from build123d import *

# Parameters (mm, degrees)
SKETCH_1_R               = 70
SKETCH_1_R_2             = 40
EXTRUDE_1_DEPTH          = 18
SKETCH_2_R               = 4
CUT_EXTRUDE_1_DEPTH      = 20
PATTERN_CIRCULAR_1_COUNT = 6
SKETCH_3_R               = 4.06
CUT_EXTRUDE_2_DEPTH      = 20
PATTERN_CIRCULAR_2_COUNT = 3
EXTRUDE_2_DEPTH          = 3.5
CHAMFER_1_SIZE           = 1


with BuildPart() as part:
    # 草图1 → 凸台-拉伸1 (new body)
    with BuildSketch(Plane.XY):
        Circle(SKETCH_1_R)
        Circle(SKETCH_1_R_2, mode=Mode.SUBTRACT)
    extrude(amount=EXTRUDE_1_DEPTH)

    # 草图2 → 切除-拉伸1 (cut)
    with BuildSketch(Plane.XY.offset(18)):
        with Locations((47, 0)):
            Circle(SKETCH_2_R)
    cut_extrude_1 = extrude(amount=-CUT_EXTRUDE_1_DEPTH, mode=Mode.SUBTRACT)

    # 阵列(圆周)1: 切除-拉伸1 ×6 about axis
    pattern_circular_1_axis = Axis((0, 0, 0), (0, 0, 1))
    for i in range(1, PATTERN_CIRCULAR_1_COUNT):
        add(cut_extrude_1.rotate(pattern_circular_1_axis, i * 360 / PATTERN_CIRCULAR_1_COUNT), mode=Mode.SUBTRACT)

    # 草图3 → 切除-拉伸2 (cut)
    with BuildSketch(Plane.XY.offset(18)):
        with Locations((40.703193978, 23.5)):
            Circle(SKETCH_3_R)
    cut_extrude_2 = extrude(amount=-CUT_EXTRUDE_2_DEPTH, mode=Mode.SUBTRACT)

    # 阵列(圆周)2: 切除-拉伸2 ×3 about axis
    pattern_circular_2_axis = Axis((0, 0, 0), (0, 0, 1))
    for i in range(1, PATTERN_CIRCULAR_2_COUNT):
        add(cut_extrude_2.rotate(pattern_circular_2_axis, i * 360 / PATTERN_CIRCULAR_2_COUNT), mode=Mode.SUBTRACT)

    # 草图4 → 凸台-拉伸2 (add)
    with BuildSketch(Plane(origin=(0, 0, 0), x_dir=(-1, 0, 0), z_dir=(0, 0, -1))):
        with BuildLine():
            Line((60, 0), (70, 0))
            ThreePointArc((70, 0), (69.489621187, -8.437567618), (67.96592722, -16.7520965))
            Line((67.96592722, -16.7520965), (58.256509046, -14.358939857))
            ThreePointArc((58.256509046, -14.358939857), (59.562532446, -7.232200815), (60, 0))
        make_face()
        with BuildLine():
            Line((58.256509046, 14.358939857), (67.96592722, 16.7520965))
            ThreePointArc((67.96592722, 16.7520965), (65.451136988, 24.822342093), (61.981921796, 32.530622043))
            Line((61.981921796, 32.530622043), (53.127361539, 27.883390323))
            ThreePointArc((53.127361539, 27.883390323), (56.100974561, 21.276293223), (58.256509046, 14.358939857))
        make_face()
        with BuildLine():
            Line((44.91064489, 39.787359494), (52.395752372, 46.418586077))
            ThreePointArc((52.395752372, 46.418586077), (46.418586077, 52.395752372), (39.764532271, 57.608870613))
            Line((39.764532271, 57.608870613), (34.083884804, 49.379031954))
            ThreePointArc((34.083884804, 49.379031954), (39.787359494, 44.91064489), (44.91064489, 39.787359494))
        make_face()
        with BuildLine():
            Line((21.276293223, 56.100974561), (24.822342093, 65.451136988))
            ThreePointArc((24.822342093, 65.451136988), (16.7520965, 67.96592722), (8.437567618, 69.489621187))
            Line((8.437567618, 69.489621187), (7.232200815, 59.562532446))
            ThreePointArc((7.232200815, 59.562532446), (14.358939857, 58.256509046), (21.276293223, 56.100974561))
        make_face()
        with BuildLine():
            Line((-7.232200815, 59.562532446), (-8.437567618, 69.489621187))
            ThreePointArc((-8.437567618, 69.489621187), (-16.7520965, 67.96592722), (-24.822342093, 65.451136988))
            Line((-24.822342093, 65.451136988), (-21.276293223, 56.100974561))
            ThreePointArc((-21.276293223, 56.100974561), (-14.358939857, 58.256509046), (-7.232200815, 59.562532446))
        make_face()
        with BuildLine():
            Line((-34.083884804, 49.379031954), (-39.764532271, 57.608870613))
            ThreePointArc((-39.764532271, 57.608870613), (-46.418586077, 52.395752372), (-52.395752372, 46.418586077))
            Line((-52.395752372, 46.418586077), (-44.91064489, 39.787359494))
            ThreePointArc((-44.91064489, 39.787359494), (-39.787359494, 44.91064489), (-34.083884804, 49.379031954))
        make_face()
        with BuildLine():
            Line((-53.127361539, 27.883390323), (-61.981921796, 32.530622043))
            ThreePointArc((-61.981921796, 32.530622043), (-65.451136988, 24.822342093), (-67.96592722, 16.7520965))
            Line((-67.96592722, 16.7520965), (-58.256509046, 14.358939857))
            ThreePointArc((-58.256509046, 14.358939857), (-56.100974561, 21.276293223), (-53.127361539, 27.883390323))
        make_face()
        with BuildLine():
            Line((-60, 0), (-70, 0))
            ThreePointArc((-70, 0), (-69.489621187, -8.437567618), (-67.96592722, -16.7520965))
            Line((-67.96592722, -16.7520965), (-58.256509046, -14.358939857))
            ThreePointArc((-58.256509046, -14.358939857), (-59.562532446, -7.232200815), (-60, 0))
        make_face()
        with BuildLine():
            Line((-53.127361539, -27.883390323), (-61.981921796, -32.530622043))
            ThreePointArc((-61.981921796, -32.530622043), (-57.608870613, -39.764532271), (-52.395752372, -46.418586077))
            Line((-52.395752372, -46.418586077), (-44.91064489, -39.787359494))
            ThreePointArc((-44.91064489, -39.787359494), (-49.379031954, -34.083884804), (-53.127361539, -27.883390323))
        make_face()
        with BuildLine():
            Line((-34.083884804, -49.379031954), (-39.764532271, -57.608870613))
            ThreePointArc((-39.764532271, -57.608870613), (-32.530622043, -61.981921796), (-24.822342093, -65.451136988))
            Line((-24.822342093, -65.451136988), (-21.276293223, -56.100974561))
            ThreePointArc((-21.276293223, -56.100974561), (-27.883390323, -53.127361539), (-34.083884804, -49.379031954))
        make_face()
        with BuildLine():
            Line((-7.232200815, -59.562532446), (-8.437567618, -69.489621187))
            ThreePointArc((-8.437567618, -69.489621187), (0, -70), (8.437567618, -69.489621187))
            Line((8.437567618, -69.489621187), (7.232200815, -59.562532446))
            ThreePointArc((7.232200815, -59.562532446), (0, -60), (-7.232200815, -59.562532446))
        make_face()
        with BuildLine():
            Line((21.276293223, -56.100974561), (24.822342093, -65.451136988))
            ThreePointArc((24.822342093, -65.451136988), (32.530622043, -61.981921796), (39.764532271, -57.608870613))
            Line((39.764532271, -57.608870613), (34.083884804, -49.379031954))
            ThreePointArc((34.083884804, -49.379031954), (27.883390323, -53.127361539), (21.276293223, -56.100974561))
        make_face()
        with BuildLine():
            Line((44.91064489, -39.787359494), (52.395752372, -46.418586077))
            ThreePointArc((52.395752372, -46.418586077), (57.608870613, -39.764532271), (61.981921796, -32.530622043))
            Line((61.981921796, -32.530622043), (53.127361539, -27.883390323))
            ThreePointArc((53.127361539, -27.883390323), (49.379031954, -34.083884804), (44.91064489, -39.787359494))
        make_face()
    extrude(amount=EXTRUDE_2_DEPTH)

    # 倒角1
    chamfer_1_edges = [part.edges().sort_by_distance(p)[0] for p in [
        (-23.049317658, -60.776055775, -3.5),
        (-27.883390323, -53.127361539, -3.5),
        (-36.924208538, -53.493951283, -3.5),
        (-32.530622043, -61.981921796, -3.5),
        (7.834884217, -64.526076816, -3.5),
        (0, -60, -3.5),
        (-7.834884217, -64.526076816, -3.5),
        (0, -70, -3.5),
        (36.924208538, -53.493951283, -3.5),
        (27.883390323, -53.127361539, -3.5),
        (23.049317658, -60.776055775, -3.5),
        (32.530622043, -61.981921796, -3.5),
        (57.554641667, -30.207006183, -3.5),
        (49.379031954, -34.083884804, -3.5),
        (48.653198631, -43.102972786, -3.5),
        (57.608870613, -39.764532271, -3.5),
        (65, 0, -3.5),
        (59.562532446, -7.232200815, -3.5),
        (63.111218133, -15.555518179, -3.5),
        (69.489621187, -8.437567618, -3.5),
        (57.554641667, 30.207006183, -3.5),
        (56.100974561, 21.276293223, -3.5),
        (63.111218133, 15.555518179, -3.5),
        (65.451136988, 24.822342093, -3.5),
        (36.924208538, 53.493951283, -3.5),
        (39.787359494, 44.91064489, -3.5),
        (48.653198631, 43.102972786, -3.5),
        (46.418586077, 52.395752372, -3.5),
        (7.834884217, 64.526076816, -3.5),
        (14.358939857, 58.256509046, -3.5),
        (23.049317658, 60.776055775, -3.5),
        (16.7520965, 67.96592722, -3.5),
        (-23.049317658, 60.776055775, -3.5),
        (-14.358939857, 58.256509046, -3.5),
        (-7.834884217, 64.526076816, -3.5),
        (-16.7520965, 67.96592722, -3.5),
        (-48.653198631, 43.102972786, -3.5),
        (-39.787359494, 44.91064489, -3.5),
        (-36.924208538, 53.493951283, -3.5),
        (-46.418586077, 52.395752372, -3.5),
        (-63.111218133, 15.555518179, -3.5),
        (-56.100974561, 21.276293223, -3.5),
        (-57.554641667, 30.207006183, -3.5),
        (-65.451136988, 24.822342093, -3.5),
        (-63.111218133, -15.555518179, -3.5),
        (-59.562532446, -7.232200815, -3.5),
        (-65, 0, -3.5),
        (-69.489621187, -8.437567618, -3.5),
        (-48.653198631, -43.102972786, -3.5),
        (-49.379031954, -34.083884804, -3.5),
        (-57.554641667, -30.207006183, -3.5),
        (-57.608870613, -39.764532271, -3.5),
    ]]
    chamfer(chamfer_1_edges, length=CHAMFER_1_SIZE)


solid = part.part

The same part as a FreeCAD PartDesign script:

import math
import FreeCAD as App
import Part
import Sketcher

V = App.Vector


def edges_at(feature, points):
    """Names of the edges that pass closest to the given points."""
    edges = feature.Shape.Edges
    near = lambda p: min(range(len(edges)), key=lambda i: edges[i].distToShape(Part.Vertex(*p))[0])
    return sorted({f"Edge{near(p) + 1}" for p in points})

doc = App.newDocument("Part")
body = doc.addObject("PartDesign::Body", "Body")

# Sketch on XY plane
sketch1 = doc.addObject("Sketcher::SketchObject", "Sketch")
body.addObject(sketch1)
sketch1.AttachmentSupport = (doc.XY_Plane, [""])
sketch1.MapMode = "FlatFace"
sketch1.addGeometry([
    Part.Circle(V(0, 0, 0), V(0, 0, 1), 70),
    Part.Circle(V(0, 0, 0), V(0, 0, 1), 40),
], False)
sketch1.addConstraint([
    Sketcher.Constraint("Coincident", 0, 3, -1, 1),
    Sketcher.Constraint("Coincident", 1, 3, -1, 1),
    Sketcher.Constraint("Diameter", 0, 140.0),
    Sketcher.Constraint("Diameter", 1, 80.0),
])
pad1 = doc.addObject("PartDesign::Pad", "Pad")
body.addObject(pad1)
pad1.Profile = sketch1
pad1.Length = 18

# Sketch on XY plane
sketch2 = doc.addObject("Sketcher::SketchObject", "Sketch001")
body.addObject(sketch2)
sketch2.AttachmentSupport = (doc.XY_Plane, [""])
sketch2.MapMode = "FlatFace"
sketch2.AttachmentOffset = App.Placement(V(0, 0, 18), App.Rotation())
sketch2.addGeometry(Part.Circle(V(47, 0, 0), V(0, 0, 1), 4), False)
sketch2.addConstraint([
    Sketcher.Constraint("PointOnObject", 0, 3, -1),
    Sketcher.Constraint("Diameter", 0, 8.0),
    Sketcher.Constraint("DistanceX", -1, 1, 0, 3, 47.0),
])
pocket1 = doc.addObject("PartDesign::Pocket", "Pocket")
body.addObject(pocket1)
pocket1.Profile = sketch2
pocket1.Length = 20
doc.recompute()

polarpattern = doc.addObject("PartDesign::PolarPattern", "PolarPattern")
body.addObject(polarpattern)
polarpattern.Originals = [pocket1]
polarpattern.Axis = (doc.Z_Axis, [""])
polarpattern.Angle = 360
polarpattern.Occurrences = 6
body.Tip = polarpattern

# Sketch on XY plane
sketch3 = doc.addObject("Sketcher::SketchObject", "Sketch002")
body.addObject(sketch3)
sketch3.AttachmentSupport = (doc.XY_Plane, [""])
sketch3.MapMode = "FlatFace"
sketch3.AttachmentOffset = App.Placement(V(0, 0, 18), App.Rotation())
sketch3.addGeometry(Part.Circle(V(40.7, 23.5, 0), V(0, 0, 1), 4.1), False)
sketch3.addConstraint([
    Sketcher.Constraint("Diameter", 0, 8.12),
    Sketcher.Constraint("DistanceY", -1, 1, 0, 3, 23.5),
    Sketcher.Constraint("DistanceX", -1, 1, 0, 3, 40.703194),
])
pocket2 = doc.addObject("PartDesign::Pocket", "Pocket001")
body.addObject(pocket2)
pocket2.Profile = sketch3
pocket2.Length = 20
doc.recompute()

polarpattern2 = doc.addObject("PartDesign::PolarPattern", "PolarPattern001")
body.addObject(polarpattern2)
polarpattern2.Originals = [pocket2]
polarpattern2.Axis = (doc.Z_Axis, [""])
polarpattern2.Angle = 360
polarpattern2.Occurrences = 3
body.Tip = polarpattern2

# Sketch on XY plane
sketch4 = doc.addObject("Sketcher::SketchObject", "Sketch003")
body.addObject(sketch4)
sketch4.AttachmentSupport = (doc.XY_Plane, [""])
sketch4.MapMode = "FlatFace"
sketch4.addGeometry([
    Part.LineSegment(V(-70, 0, 0), V(-60, 0, 0)),  # 0
    Part.ArcOfCircle(Part.Circle(V(0, 0, 0), V(0, 0, 1), 60), math.radians(180), math.radians(193.85)),  # 1
    Part.LineSegment(V(-58, -14, 0), V(-68, -17, 0)),  # 2
    Part.ArcOfCircle(Part.Circle(V(0, 0, 0), V(0, 0, 1), 70), math.radians(180), math.radians(193.85)),  # 3
    Part.LineSegment(V(-58, 14, 0), V(-68, 17, 0)),  # 4
    Part.ArcOfCircle(Part.Circle(V(0, 0, 0), V(0, 0, 1), 70), math.radians(152.31), math.radians(166.15)),  # 5
    Part.LineSegment(V(-62, 33, 0), V(-53, 28, 0)),  # 6
    Part.ArcOfCircle(Part.Circle(V(0, 0, 0), V(0, 0, 1), 60), math.radians(152.31), math.radians(166.15)),  # 7
    Part.LineSegment(V(-45, 40, 0), V(-52, 46, 0)),  # 8
    Part.ArcOfCircle(Part.Circle(V(0, 0, 0), V(0, 0, 1), 70), math.radians(124.62), math.radians(138.46)),  # 9
    Part.LineSegment(V(-40, 58, 0), V(-34, 49, 0)),  # 10
    Part.ArcOfCircle(Part.Circle(V(0, 0, 0), V(0, 0, 1), 60), math.radians(124.62), math.radians(138.46)),  # 11
    Part.LineSegment(V(-21, 56, 0), V(-25, 65, 0)),  # 12
    Part.ArcOfCircle(Part.Circle(V(0, 0, 0), V(0, 0, 1), 70), math.radians(96.92), math.radians(110.77)),  # 13
    Part.LineSegment(V(-8, 69, 0), V(-7, 60, 0)),  # 14
    Part.ArcOfCircle(Part.Circle(V(0, 0, 0), V(0, 0, 1), 60), math.radians(96.92), math.radians(110.77)),  # 15
    Part.LineSegment(V(7, 60, 0), V(8, 69, 0)),  # 16
    Part.ArcOfCircle(Part.Circle(V(0, 0, 0), V(0, 0, 1), 70), math.radians(69.23), math.radians(83.08)),  # 17
    Part.LineSegment(V(25, 65, 0), V(21, 56, 0)),  # 18
    Part.ArcOfCircle(Part.Circle(V(0, 0, 0), V(0, 0, 1), 60), math.radians(69.23), math.radians(83.08)),  # 19
    Part.LineSegment(V(34, 49, 0), V(40, 58, 0)),  # 20
    Part.ArcOfCircle(Part.Circle(V(0, 0, 0), V(0, 0, 1), 70), math.radians(41.54), math.radians(55.38)),  # 21
    Part.LineSegment(V(52, 46, 0), V(45, 40, 0)),  # 22
    Part.ArcOfCircle(Part.Circle(V(0, 0, 0), V(0, 0, 1), 60), math.radians(41.54), math.radians(55.38)),  # 23
    Part.LineSegment(V(53, 28, 0), V(62, 33, 0)),  # 24
    Part.ArcOfCircle(Part.Circle(V(0, 0, 0), V(0, 0, 1), 70), math.radians(13.85), math.radians(27.69)),  # 25
    Part.LineSegment(V(68, 17, 0), V(58, 14, 0)),  # 26
    Part.ArcOfCircle(Part.Circle(V(0, 0, 0), V(0, 0, 1), 60), math.radians(13.85), math.radians(27.69)),  # 27
    Part.LineSegment(V(60, 0, 0), V(70, 0, 0)),  # 28
    Part.ArcOfCircle(Part.Circle(V(0, 0, 0), V(0, 0, 1), 70), math.radians(-13.85), math.radians(0)),  # 29
    Part.LineSegment(V(68, -17, 0), V(58, -14, 0)),  # 30
    Part.ArcOfCircle(Part.Circle(V(0, 0, 0), V(0, 0, 1), 60), math.radians(-13.85), math.radians(0)),  # 31
    Part.LineSegment(V(53, -28, 0), V(62, -33, 0)),  # 32
    Part.ArcOfCircle(Part.Circle(V(0, 0, 0), V(0, 0, 1), 70), math.radians(-41.54), math.radians(-27.69)),  # 33
    Part.LineSegment(V(52, -46, 0), V(45, -40, 0)),  # 34
    Part.ArcOfCircle(Part.Circle(V(0, 0, 0), V(0, 0, 1), 60), math.radians(-41.54), math.radians(-27.69)),  # 35
    Part.LineSegment(V(34, -49, 0), V(40, -58, 0)),  # 36
    Part.ArcOfCircle(Part.Circle(V(0, 0, 0), V(0, 0, 1), 70), math.radians(-69.23), math.radians(-55.38)),  # 37
    Part.LineSegment(V(25, -65, 0), V(21, -56, 0)),  # 38
    Part.ArcOfCircle(Part.Circle(V(0, 0, 0), V(0, 0, 1), 60), math.radians(-69.23), math.radians(-55.38)),  # 39
    Part.LineSegment(V(7, -60, 0), V(8, -69, 0)),  # 40
    Part.ArcOfCircle(Part.Circle(V(0, 0, 0), V(0, 0, 1), 70), math.radians(-96.92), math.radians(-83.08)),  # 41
    Part.LineSegment(V(-8, -69, 0), V(-7, -60, 0)),  # 42
    Part.ArcOfCircle(Part.Circle(V(0, 0, 0), V(0, 0, 1), 60), math.radians(-96.92), math.radians(-83.08)),  # 43
    Part.LineSegment(V(-21, -56, 0), V(-25, -65, 0)),  # 44
    Part.ArcOfCircle(Part.Circle(V(0, 0, 0), V(0, 0, 1), 70), math.radians(-124.62), math.radians(-110.77)),  # 45
    Part.LineSegment(V(-40, -58, 0), V(-34, -49, 0)),  # 46
    Part.ArcOfCircle(Part.Circle(V(0, 0, 0), V(0, 0, 1), 60), math.radians(-124.62), math.radians(-110.77)),  # 47
    Part.LineSegment(V(-45, -40, 0), V(-52, -46, 0)),  # 48
    Part.ArcOfCircle(Part.Circle(V(0, 0, 0), V(0, 0, 1), 70), math.radians(-152.31), math.radians(-138.46)),  # 49
    Part.LineSegment(V(-62, -33, 0), V(-53, -28, 0)),  # 50
    Part.ArcOfCircle(Part.Circle(V(0, 0, 0), V(0, 0, 1), 60), math.radians(-152.31), math.radians(-138.46)),  # 51
], False)
sketch4.addConstraint([
    Sketcher.Constraint("Coincident", 0, 2, 1, 1),
    Sketcher.Constraint("Coincident", 1, 2, 2, 1),
    Sketcher.Constraint("Coincident", 2, 2, 3, 2),
    Sketcher.Constraint("Coincident", 3, 1, 0, 1),
    Sketcher.Constraint("Coincident", 4, 2, 5, 2),
    Sketcher.Constraint("Coincident", 5, 1, 6, 1),
    Sketcher.Constraint("Coincident", 6, 2, 7, 1),
    Sketcher.Constraint("Coincident", 7, 2, 4, 1),
    Sketcher.Constraint("Coincident", 8, 2, 9, 2),
    Sketcher.Constraint("Coincident", 9, 1, 10, 1),
    Sketcher.Constraint("Coincident", 10, 2, 11, 1),
    Sketcher.Constraint("Coincident", 11, 2, 8, 1),
    Sketcher.Constraint("Coincident", 12, 2, 13, 2),
    Sketcher.Constraint("Coincident", 13, 1, 14, 1),
    Sketcher.Constraint("Coincident", 14, 2, 15, 1),
    Sketcher.Constraint("Coincident", 15, 2, 12, 1),
    Sketcher.Constraint("Coincident", 16, 2, 17, 2),
    Sketcher.Constraint("Coincident", 17, 1, 18, 1),
    Sketcher.Constraint("Coincident", 18, 2, 19, 1),
    Sketcher.Constraint("Coincident", 19, 2, 16, 1),
    Sketcher.Constraint("Coincident", 20, 2, 21, 2),
    Sketcher.Constraint("Coincident", 21, 1, 22, 1),
    Sketcher.Constraint("Coincident", 22, 2, 23, 1),
    Sketcher.Constraint("Coincident", 23, 2, 20, 1),
    Sketcher.Constraint("Coincident", 24, 2, 25, 2),
    Sketcher.Constraint("Coincident", 25, 1, 26, 1),
    Sketcher.Constraint("Coincident", 26, 2, 27, 1),
    Sketcher.Constraint("Coincident", 27, 2, 24, 1),
    Sketcher.Constraint("Coincident", 28, 2, 29, 2),
    Sketcher.Constraint("Coincident", 29, 1, 30, 1),
    Sketcher.Constraint("Coincident", 30, 2, 31, 1),
    Sketcher.Constraint("Coincident", 31, 2, 28, 1),
    Sketcher.Constraint("Coincident", 32, 2, 33, 2),
    Sketcher.Constraint("Coincident", 33, 1, 34, 1),
    Sketcher.Constraint("Coincident", 34, 2, 35, 1),
    Sketcher.Constraint("Coincident", 35, 2, 32, 1),
    Sketcher.Constraint("Coincident", 36, 2, 37, 2),
    Sketcher.Constraint("Coincident", 37, 1, 38, 1),
    Sketcher.Constraint("Coincident", 38, 2, 39, 1),
    Sketcher.Constraint("Coincident", 39, 2, 36, 1),
    Sketcher.Constraint("Coincident", 40, 2, 41, 2),
    Sketcher.Constraint("Coincident", 41, 1, 42, 1),
    Sketcher.Constraint("Coincident", 42, 2, 43, 1),
    Sketcher.Constraint("Coincident", 43, 2, 40, 1),
    Sketcher.Constraint("Coincident", 44, 2, 45, 2),
    Sketcher.Constraint("Coincident", 45, 1, 46, 1),
    Sketcher.Constraint("Coincident", 46, 2, 47, 1),
    Sketcher.Constraint("Coincident", 47, 2, 44, 1),
    Sketcher.Constraint("Coincident", 48, 2, 49, 2),
    Sketcher.Constraint("Coincident", 49, 1, 50, 1),
    Sketcher.Constraint("Coincident", 50, 2, 51, 1),
    Sketcher.Constraint("Coincident", 51, 2, 48, 1),
    Sketcher.Constraint("Horizontal", 0),
    Sketcher.Constraint("Horizontal", 28),
    Sketcher.Constraint("Coincident", 1, 3, -1, 1),
    Sketcher.Constraint("Coincident", 3, 3, -1, 1),
    Sketcher.Constraint("Coincident", 5, 3, -1, 1),
    Sketcher.Constraint("Coincident", 7, 3, -1, 1),
    Sketcher.Constraint("Coincident", 9, 3, -1, 1),
    Sketcher.Constraint("Coincident", 11, 3, -1, 1),
    Sketcher.Constraint("Coincident", 13, 3, -1, 1),
    Sketcher.Constraint("Coincident", 15, 3, -1, 1),
    Sketcher.Constraint("Coincident", 17, 3, -1, 1),
    Sketcher.Constraint("Coincident", 19, 3, -1, 1),
    Sketcher.Constraint("Coincident", 21, 3, -1, 1),
    Sketcher.Constraint("Coincident", 23, 3, -1, 1),
    Sketcher.Constraint("Coincident", 25, 3, -1, 1),
    Sketcher.Constraint("Coincident", 27, 3, -1, 1),
    Sketcher.Constraint("Coincident", 29, 3, -1, 1),
    Sketcher.Constraint("Coincident", 31, 3, -1, 1),
    Sketcher.Constraint("Coincident", 33, 3, -1, 1),
    Sketcher.Constraint("Coincident", 35, 3, -1, 1),
    Sketcher.Constraint("Coincident", 37, 3, -1, 1),
    Sketcher.Constraint("Coincident", 39, 3, -1, 1),
    Sketcher.Constraint("Coincident", 41, 3, -1, 1),
    Sketcher.Constraint("Coincident", 43, 3, -1, 1),
    Sketcher.Constraint("Coincident", 45, 3, -1, 1),
    Sketcher.Constraint("Coincident", 47, 3, -1, 1),
    Sketcher.Constraint("Coincident", 49, 3, -1, 1),
    Sketcher.Constraint("Coincident", 51, 3, -1, 1),
    Sketcher.Constraint("Equal", 3, 5),
    Sketcher.Constraint("Equal", 1, 7),
    Sketcher.Constraint("Equal", 5, 9),
    Sketcher.Constraint("Equal", 7, 11),
    Sketcher.Constraint("Equal", 9, 13),
    Sketcher.Constraint("Equal", 11, 15),
    Sketcher.Constraint("Equal", 13, 17),
    Sketcher.Constraint("Equal", 15, 19),
    Sketcher.Constraint("Equal", 17, 21),
    Sketcher.Constraint("Equal", 19, 23),
    Sketcher.Constraint("Equal", 21, 25),
    Sketcher.Constraint("Equal", 23, 27),
    Sketcher.Constraint("Equal", 25, 29),
    Sketcher.Constraint("Equal", 27, 31),
    Sketcher.Constraint("Equal", 29, 33),
    Sketcher.Constraint("Equal", 31, 35),
    Sketcher.Constraint("Equal", 33, 37),
    Sketcher.Constraint("Equal", 35, 39),
    Sketcher.Constraint("Equal", 37, 41),
    Sketcher.Constraint("Equal", 39, 43),
    Sketcher.Constraint("Equal", 41, 45),
    Sketcher.Constraint("Equal", 43, 47),
    Sketcher.Constraint("Equal", 45, 49),
    Sketcher.Constraint("Equal", 47, 51),
    Sketcher.Constraint("PointOnObject", 0, 2, -1),
    Sketcher.Constraint("PointOnObject", 28, 2, -1),
    Sketcher.Constraint("Parallel", 2, 26),
    Sketcher.Constraint("Parallel", 4, 30),
    Sketcher.Constraint("Parallel", 6, 32),
    Sketcher.Constraint("Parallel", 8, 34),
    Sketcher.Constraint("Parallel", 10, 36),
    Sketcher.Constraint("Parallel", 12, 38),
    Sketcher.Constraint("Parallel", 14, 40),
    Sketcher.Constraint("Parallel", 16, 42),
    Sketcher.Constraint("Parallel", 18, 44),
    Sketcher.Constraint("Parallel", 20, 46),
    Sketcher.Constraint("Parallel", 22, 48),
    Sketcher.Constraint("Parallel", 24, 50),
    Sketcher.Constraint("Horizontal", 13, 1, 16, 2),
    Sketcher.Constraint("Horizontal", 12, 2, 17, 1),
    Sketcher.Constraint("Horizontal", 15, 2, 18, 2),
    Sketcher.Constraint("Horizontal", 14, 2, 19, 2),
    Sketcher.Constraint("Horizontal", 9, 1, 20, 2),
    Sketcher.Constraint("Horizontal", 8, 2, 21, 1),
    Sketcher.Constraint("Horizontal", 11, 2, 22, 2),
    Sketcher.Constraint("Horizontal", 10, 2, 23, 2),
    Sketcher.Constraint("Horizontal", 5, 1, 24, 2),
    Sketcher.Constraint("Horizontal", 4, 2, 25, 1),
    Sketcher.Constraint("Horizontal", 7, 2, 26, 2),
    Sketcher.Constraint("Horizontal", 6, 2, 27, 2),
    Sketcher.Constraint("Horizontal", 2, 2, 29, 1),
    Sketcher.Constraint("Horizontal", 40, 2, 41, 1),
    Sketcher.Constraint("Horizontal", 37, 1, 44, 2),
    Sketcher.Constraint("Horizontal", 36, 2, 45, 1),
    Sketcher.Constraint("Horizontal", 33, 1, 48, 2),
    Sketcher.Constraint("Horizontal", 32, 2, 49, 1),
    Sketcher.Constraint("Vertical", 2, 2, 4, 2),
    Sketcher.Constraint("Vertical", 24, 2, 32, 2),
    Sketcher.Constraint("Vertical", 21, 1, 33, 1),
    Sketcher.Constraint("Vertical", 20, 2, 36, 2),
    Sketcher.Constraint("Vertical", 17, 1, 37, 1),
    Sketcher.Constraint("Vertical", 16, 2, 40, 2),
    Sketcher.Constraint("Radius", 1, 60.0),
    Sketcher.Constraint("Radius", 3, 70.0),
    Sketcher.Constraint("DistanceX", 14, 2, -1, 1, 7.232201),
    Sketcher.Constraint("DistanceX", 1, 2, -1, 1, 58.256509),
    Sketcher.Constraint("DistanceX", 5, 1, -1, 1, 61.981922),
    Sketcher.Constraint("DistanceX", 6, 2, -1, 1, 53.127362),
    Sketcher.Constraint("DistanceY", -1, 1, 9, 1, 57.608871),
    Sketcher.Constraint("DistanceY", -1, 1, 10, 2, 49.379032),
    Sketcher.Constraint("DistanceY", -1, 1, 11, 2, 39.787359),
    Sketcher.Constraint("DistanceY", -1, 1, 13, 1, 69.489621),
    Sketcher.Constraint("DistanceX", 2, 2, -1, 1, 67.965927),
    Sketcher.Constraint("DistanceX", 8, 2, -1, 1, 52.395752),
    Sketcher.Constraint("DistanceX", 12, 2, -1, 1, 24.822342),
    Sketcher.Constraint("DistanceX", 15, 2, -1, 1, 21.276293),
])
pad2 = doc.addObject("PartDesign::Pad", "Pad001")
body.addObject(pad2)
pad2.Profile = sketch4
pad2.Length = 3.5
pad2.Reversed = True
doc.recompute()

chamfer = doc.addObject("PartDesign::Chamfer", "Chamfer")
body.addObject(chamfer)
chamfer.Base = (pad2, edges_at(pad2, [
    (-23.049, -60.776, -3.5),
    (-27.883, -53.127, -3.5),
    (-36.924, -53.494, -3.5),
    (-32.531, -61.982, -3.5),
    (7.835, -64.526, -3.5),
    (0, -60, -3.5),
    (-7.835, -64.526, -3.5),
    (0, -70, -3.5),
    (36.924, -53.494, -3.5),
    (27.883, -53.127, -3.5),
    (23.049, -60.776, -3.5),
    (32.531, -61.982, -3.5),
    (57.555, -30.207, -3.5),
    (49.379, -34.084, -3.5),
    (48.653, -43.103, -3.5),
    (57.609, -39.765, -3.5),
    (65, 0, -3.5),
    (59.563, -7.232, -3.5),
    (63.111, -15.556, -3.5),
    (69.49, -8.438, -3.5),
    (57.555, 30.207, -3.5),
    (56.101, 21.276, -3.5),
    (63.111, 15.556, -3.5),
    (65.451, 24.822, -3.5),
    (36.924, 53.494, -3.5),
    (39.787, 44.911, -3.5),
    (48.653, 43.103, -3.5),
    (46.419, 52.396, -3.5),
    (7.835, 64.526, -3.5),
    (14.359, 58.257, -3.5),
    (23.049, 60.776, -3.5),
    (16.752, 67.966, -3.5),
    (-23.049, 60.776, -3.5),
    (-14.359, 58.257, -3.5),
    (-7.835, 64.526, -3.5),
    (-16.752, 67.966, -3.5),
    (-48.653, 43.103, -3.5),
    (-39.787, 44.911, -3.5),
    (-36.924, 53.494, -3.5),
    (-46.419, 52.396, -3.5),
    (-63.111, 15.556, -3.5),
    (-56.101, 21.276, -3.5),
    (-57.555, 30.207, -3.5),
    (-65.451, 24.822, -3.5),
    (-63.111, -15.556, -3.5),
    (-59.563, -7.232, -3.5),
    (-65, 0, -3.5),
    (-69.49, -8.438, -3.5),
    (-48.653, -43.103, -3.5),
    (-49.379, -34.084, -3.5),
    (-57.555, -30.207, -3.5),
    (-57.609, -39.765, -3.5),
]))
chamfer.Size = 1

doc.recompute()
